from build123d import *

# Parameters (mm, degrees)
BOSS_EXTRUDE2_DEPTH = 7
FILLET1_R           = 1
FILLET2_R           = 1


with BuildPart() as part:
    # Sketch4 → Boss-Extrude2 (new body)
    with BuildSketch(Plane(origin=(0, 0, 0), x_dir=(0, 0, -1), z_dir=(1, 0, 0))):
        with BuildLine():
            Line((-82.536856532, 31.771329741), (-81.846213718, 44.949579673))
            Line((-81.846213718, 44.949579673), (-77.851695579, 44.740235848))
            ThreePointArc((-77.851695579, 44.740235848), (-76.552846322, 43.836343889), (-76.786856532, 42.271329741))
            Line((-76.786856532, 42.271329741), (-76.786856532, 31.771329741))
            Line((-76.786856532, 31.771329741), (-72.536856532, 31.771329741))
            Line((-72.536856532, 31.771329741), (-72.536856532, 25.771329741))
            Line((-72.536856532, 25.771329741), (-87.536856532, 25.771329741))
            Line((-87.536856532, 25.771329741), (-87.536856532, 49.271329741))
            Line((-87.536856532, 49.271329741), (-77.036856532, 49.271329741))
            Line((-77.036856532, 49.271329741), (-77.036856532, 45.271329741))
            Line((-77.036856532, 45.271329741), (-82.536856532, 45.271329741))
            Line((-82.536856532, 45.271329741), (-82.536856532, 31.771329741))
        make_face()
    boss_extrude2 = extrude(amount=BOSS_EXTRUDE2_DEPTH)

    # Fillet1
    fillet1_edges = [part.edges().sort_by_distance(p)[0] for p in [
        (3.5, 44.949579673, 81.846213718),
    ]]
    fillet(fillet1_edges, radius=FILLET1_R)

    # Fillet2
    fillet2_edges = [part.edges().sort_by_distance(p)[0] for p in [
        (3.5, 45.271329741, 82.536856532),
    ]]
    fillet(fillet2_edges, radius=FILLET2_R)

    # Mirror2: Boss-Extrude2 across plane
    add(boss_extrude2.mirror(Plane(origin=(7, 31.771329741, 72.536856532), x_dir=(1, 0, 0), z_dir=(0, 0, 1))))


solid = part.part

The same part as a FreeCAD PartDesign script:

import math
import FreeCAD as App
import Part
import Sketcher
from FreeCAD import Vector
Q = App.Units.Quantity


def edges_at(feature, points):
    """Names of the edges that pass closest to the given points."""
    edges = feature.Shape.Edges
    near = lambda p: min(range(len(edges)), key=lambda i: edges[i].distToShape(Part.Vertex(*p))[0])
    return sorted({f"Edge{near(p) + 1}" for p in points})

doc = App.newDocument("Part")
params = doc.addObject("Spreadsheet::Sheet", "Params")
for row, (alias, value) in enumerate([
    ("sketch1_radius", "1.5 mm"),
    ("sketch1_width", "4 mm"),
    ("sketch1_width2", "6 mm"),
    ("sketch1_height", "15 mm"),
    ("sketch1_length", "4 mm"),
    ("pad1_length", "7 mm"),
    ("fillet_radius", "1 mm"),
    ("fillet2_radius", "1 mm"),
], start=1):
    params.set(f"A{row}", alias)
    params.set(f"B{row}", "=" + value)
    params.setAlias(f"B{row}", alias)

body = doc.addObject("PartDesign::Body", "Body")

sketch1 = body.newObject("Sketcher::SketchObject", "Sketch")
sketch1.AttachmentSupport = (doc.getObject("YZ_Plane"), [""])
sketch1.MapMode = "FlatFace"
sketch1.addGeometry(Part.LineSegment(Vector(44.94958, 81.846214, 0), Vector(31.77133, 82.536857, 0)), False)
sketch1.addGeometry(Part.LineSegment(Vector(31.77133, 82.536857, 0), Vector(45.27133, 82.536857, 0)), False)
sketch1.addGeometry(Part.LineSegment(Vector(45.27133, 82.536857, 0), Vector(45.27133, 77.036857, 0)), False)
sketch1.addGeometry(Part.LineSegment(Vector(45.27133, 77.036857, 0), Vector(49.27133, 77.036857, 0)), False)
sketch1.addGeometry(Part.LineSegment(Vector(49.27133, 77.036857, 0), Vector(49.27133, 87.536857, 0)), False)
sketch1.addGeometry(Part.LineSegment(Vector(49.27133, 87.536857, 0), Vector(25.77133, 87.536857, 0)), False)
sketch1.addGeometry(Part.LineSegment(Vector(25.77133, 87.536857, 0), Vector(25.77133, 72.536857, 0)), False)
sketch1.addGeometry(Part.LineSegment(Vector(25.77133, 72.536857, 0), Vector(31.77133, 72.536857, 0)), False)
sketch1.addGeometry(Part.LineSegment(Vector(31.77133, 72.536857, 0), Vector(31.77133, 76.786857, 0)), False)
sketch1.addGeometry(Part.LineSegment(Vector(31.77133, 76.786857, 0), Vector(42.27133, 76.786857, 0)), False)
sketch1.addGeometry(Part.ArcOfCircle(Part.Circle(Vector(43.242292, 77.9302, 0), Vector(0, 0, 1), 1.5), math.radians(-130.338933), math.radians(-3)), False)
sketch1.addGeometry(Part.LineSegment(Vector(44.740236, 77.851696, 0), Vector(44.94958, 81.846214, 0)), False)
sketch1.addConstraint(Sketcher.Constraint("Coincident", 0, 2, 1, 1))
sketch1.addConstraint(Sketcher.Constraint("Coincident", 1, 2, 2, 1))
sketch1.addConstraint(Sketcher.Constraint("Coincident", 2, 2, 3, 1))
sketch1.addConstraint(Sketcher.Constraint("Coincident", 3, 2, 4, 1))
sketch1.addConstraint(Sketcher.Constraint("Coincident", 4, 2, 5, 1))
sketch1.addConstraint(Sketcher.Constraint("Coincident", 5, 2, 6, 1))
sketch1.addConstraint(Sketcher.Constraint("Coincident", 6, 2, 7, 1))
sketch1.addConstraint(Sketcher.Constraint("Coincident", 7, 2, 8, 1))
sketch1.addConstraint(Sketcher.Constraint("Coincident", 8, 2, 9, 1))
sketch1.addConstraint(Sketcher.Constraint("Coincident", 9, 2, 10, 1))
sketch1.addConstraint(Sketcher.Constraint("Tangent", 10, 2, 11, 1))
sketch1.addConstraint(Sketcher.Constraint("Coincident", 11, 2, 0, 1))
sketch1.addConstraint(Sketcher.Constraint("Horizontal", 1))
sketch1.addConstraint(Sketcher.Constraint("Vertical", 2))
sketch1.addConstraint(Sketcher.Constraint("Horizontal", 3))
sketch1.addConstraint(Sketcher.Constraint("Vertical", 4))
sketch1.addConstraint(Sketcher.Constraint("Horizontal", 5))
sketch1.addConstraint(Sketcher.Constraint("Vertical", 6))
sketch1.addConstraint(Sketcher.Constraint("Horizontal", 7))
sketch1.addConstraint(Sketcher.Constraint("Vertical", 8))
sketch1.addConstraint(Sketcher.Constraint("Horizontal", 9))
sketch1.addConstraint(Sketcher.Constraint("Perpendicular", 0, 11))
sketch1.addConstraint(Sketcher.Constraint("Vertical", 0, 2, 7, 2))
sketch1.addConstraint(Sketcher.Constraint("Equal", 9, 4))
sketch1.addConstraint(Sketcher.Constraint("Radius", 10, 1.5))
sketch1.addConstraint(Sketcher.Constraint("DistanceX", 3, 1, 3, 2, 4.0))
sketch1.addConstraint(Sketcher.Constraint("DistanceX", 7, 1, 7, 2, 6.0))
sketch1.addConstraint(Sketcher.Constraint("DistanceY", 6, 2, 6, 1, 15.0))
sketch1.addConstraint(Sketcher.Constraint("Angle", 0, Q("177 deg")))
sketch1.addConstraint(Sketcher.Constraint("Distance", 11, 4.0))
sketch1.addConstraint(Sketcher.Constraint("DistanceX", 1, 1, 1, 2, 13.5))
sketch1.addConstraint(Sketcher.Constraint("DistanceX", 9, 1, 9, 2, 10.5))
sketch1.addConstraint(Sketcher.Constraint("DistanceY", 2, 2, 2, 1, 5.5))
sketch1.addConstraint(Sketcher.Constraint("DistanceY", 8, 1, 8, 2, 4.25))
sketch1.addConstraint(Sketcher.Constraint("DistanceY", -1, 1, 10, 3, 77.9302))
sketch1.addConstraint(Sketcher.Constraint("DistanceX", -1, 1, 10, 3, 43.242292))
sketch1.setExpression("Constraints[24]", "Params.sketch1_radius")
sketch1.setExpression("Constraints[25]", "Params.sketch1_width")
sketch1.setExpression("Constraints[26]", "Params.sketch1_width2")
sketch1.setExpression("Constraints[27]", "Params.sketch1_height")
sketch1.setExpression("Constraints[29]", "Params.sketch1_length")
pad1 = body.newObject("PartDesign::Pad", "Pad")
pad1.Profile = sketch1
pad1.setExpression("Length", "Params.pad1_length")
doc.recompute()

fillet = body.newObject("PartDesign::Fillet", "Fillet")
fillet.Base = (pad1, edges_at(pad1, [(3.5, 44.95, 81.846)]))
fillet.setExpression("Radius", "Params.fillet_radius")
doc.recompute()

fillet2 = body.newObject("PartDesign::Fillet", "Fillet001")
fillet2.Base = (fillet, edges_at(fillet, [(3.5, 45.271, 82.537)]))
fillet2.setExpression("Radius", "Params.fillet2_radius")
doc.recompute()

datumplane = body.newObject("PartDesign::Plane", "DatumPlane")
datumplane.AttachmentSupport = (doc.getObject("XY_Plane"), [""])
datumplane.MapMode = "FlatFace"
datumplane.AttachmentOffset = App.Placement(Vector(0, 0, 72.536857), App.Rotation())
mirrored = body.newObject("PartDesign::Mirrored", "Mirrored")
mirrored.Originals = [pad1]
mirrored.MirrorPlane = (datumplane, [""])
body.Tip = mirrored

doc.recompute()
